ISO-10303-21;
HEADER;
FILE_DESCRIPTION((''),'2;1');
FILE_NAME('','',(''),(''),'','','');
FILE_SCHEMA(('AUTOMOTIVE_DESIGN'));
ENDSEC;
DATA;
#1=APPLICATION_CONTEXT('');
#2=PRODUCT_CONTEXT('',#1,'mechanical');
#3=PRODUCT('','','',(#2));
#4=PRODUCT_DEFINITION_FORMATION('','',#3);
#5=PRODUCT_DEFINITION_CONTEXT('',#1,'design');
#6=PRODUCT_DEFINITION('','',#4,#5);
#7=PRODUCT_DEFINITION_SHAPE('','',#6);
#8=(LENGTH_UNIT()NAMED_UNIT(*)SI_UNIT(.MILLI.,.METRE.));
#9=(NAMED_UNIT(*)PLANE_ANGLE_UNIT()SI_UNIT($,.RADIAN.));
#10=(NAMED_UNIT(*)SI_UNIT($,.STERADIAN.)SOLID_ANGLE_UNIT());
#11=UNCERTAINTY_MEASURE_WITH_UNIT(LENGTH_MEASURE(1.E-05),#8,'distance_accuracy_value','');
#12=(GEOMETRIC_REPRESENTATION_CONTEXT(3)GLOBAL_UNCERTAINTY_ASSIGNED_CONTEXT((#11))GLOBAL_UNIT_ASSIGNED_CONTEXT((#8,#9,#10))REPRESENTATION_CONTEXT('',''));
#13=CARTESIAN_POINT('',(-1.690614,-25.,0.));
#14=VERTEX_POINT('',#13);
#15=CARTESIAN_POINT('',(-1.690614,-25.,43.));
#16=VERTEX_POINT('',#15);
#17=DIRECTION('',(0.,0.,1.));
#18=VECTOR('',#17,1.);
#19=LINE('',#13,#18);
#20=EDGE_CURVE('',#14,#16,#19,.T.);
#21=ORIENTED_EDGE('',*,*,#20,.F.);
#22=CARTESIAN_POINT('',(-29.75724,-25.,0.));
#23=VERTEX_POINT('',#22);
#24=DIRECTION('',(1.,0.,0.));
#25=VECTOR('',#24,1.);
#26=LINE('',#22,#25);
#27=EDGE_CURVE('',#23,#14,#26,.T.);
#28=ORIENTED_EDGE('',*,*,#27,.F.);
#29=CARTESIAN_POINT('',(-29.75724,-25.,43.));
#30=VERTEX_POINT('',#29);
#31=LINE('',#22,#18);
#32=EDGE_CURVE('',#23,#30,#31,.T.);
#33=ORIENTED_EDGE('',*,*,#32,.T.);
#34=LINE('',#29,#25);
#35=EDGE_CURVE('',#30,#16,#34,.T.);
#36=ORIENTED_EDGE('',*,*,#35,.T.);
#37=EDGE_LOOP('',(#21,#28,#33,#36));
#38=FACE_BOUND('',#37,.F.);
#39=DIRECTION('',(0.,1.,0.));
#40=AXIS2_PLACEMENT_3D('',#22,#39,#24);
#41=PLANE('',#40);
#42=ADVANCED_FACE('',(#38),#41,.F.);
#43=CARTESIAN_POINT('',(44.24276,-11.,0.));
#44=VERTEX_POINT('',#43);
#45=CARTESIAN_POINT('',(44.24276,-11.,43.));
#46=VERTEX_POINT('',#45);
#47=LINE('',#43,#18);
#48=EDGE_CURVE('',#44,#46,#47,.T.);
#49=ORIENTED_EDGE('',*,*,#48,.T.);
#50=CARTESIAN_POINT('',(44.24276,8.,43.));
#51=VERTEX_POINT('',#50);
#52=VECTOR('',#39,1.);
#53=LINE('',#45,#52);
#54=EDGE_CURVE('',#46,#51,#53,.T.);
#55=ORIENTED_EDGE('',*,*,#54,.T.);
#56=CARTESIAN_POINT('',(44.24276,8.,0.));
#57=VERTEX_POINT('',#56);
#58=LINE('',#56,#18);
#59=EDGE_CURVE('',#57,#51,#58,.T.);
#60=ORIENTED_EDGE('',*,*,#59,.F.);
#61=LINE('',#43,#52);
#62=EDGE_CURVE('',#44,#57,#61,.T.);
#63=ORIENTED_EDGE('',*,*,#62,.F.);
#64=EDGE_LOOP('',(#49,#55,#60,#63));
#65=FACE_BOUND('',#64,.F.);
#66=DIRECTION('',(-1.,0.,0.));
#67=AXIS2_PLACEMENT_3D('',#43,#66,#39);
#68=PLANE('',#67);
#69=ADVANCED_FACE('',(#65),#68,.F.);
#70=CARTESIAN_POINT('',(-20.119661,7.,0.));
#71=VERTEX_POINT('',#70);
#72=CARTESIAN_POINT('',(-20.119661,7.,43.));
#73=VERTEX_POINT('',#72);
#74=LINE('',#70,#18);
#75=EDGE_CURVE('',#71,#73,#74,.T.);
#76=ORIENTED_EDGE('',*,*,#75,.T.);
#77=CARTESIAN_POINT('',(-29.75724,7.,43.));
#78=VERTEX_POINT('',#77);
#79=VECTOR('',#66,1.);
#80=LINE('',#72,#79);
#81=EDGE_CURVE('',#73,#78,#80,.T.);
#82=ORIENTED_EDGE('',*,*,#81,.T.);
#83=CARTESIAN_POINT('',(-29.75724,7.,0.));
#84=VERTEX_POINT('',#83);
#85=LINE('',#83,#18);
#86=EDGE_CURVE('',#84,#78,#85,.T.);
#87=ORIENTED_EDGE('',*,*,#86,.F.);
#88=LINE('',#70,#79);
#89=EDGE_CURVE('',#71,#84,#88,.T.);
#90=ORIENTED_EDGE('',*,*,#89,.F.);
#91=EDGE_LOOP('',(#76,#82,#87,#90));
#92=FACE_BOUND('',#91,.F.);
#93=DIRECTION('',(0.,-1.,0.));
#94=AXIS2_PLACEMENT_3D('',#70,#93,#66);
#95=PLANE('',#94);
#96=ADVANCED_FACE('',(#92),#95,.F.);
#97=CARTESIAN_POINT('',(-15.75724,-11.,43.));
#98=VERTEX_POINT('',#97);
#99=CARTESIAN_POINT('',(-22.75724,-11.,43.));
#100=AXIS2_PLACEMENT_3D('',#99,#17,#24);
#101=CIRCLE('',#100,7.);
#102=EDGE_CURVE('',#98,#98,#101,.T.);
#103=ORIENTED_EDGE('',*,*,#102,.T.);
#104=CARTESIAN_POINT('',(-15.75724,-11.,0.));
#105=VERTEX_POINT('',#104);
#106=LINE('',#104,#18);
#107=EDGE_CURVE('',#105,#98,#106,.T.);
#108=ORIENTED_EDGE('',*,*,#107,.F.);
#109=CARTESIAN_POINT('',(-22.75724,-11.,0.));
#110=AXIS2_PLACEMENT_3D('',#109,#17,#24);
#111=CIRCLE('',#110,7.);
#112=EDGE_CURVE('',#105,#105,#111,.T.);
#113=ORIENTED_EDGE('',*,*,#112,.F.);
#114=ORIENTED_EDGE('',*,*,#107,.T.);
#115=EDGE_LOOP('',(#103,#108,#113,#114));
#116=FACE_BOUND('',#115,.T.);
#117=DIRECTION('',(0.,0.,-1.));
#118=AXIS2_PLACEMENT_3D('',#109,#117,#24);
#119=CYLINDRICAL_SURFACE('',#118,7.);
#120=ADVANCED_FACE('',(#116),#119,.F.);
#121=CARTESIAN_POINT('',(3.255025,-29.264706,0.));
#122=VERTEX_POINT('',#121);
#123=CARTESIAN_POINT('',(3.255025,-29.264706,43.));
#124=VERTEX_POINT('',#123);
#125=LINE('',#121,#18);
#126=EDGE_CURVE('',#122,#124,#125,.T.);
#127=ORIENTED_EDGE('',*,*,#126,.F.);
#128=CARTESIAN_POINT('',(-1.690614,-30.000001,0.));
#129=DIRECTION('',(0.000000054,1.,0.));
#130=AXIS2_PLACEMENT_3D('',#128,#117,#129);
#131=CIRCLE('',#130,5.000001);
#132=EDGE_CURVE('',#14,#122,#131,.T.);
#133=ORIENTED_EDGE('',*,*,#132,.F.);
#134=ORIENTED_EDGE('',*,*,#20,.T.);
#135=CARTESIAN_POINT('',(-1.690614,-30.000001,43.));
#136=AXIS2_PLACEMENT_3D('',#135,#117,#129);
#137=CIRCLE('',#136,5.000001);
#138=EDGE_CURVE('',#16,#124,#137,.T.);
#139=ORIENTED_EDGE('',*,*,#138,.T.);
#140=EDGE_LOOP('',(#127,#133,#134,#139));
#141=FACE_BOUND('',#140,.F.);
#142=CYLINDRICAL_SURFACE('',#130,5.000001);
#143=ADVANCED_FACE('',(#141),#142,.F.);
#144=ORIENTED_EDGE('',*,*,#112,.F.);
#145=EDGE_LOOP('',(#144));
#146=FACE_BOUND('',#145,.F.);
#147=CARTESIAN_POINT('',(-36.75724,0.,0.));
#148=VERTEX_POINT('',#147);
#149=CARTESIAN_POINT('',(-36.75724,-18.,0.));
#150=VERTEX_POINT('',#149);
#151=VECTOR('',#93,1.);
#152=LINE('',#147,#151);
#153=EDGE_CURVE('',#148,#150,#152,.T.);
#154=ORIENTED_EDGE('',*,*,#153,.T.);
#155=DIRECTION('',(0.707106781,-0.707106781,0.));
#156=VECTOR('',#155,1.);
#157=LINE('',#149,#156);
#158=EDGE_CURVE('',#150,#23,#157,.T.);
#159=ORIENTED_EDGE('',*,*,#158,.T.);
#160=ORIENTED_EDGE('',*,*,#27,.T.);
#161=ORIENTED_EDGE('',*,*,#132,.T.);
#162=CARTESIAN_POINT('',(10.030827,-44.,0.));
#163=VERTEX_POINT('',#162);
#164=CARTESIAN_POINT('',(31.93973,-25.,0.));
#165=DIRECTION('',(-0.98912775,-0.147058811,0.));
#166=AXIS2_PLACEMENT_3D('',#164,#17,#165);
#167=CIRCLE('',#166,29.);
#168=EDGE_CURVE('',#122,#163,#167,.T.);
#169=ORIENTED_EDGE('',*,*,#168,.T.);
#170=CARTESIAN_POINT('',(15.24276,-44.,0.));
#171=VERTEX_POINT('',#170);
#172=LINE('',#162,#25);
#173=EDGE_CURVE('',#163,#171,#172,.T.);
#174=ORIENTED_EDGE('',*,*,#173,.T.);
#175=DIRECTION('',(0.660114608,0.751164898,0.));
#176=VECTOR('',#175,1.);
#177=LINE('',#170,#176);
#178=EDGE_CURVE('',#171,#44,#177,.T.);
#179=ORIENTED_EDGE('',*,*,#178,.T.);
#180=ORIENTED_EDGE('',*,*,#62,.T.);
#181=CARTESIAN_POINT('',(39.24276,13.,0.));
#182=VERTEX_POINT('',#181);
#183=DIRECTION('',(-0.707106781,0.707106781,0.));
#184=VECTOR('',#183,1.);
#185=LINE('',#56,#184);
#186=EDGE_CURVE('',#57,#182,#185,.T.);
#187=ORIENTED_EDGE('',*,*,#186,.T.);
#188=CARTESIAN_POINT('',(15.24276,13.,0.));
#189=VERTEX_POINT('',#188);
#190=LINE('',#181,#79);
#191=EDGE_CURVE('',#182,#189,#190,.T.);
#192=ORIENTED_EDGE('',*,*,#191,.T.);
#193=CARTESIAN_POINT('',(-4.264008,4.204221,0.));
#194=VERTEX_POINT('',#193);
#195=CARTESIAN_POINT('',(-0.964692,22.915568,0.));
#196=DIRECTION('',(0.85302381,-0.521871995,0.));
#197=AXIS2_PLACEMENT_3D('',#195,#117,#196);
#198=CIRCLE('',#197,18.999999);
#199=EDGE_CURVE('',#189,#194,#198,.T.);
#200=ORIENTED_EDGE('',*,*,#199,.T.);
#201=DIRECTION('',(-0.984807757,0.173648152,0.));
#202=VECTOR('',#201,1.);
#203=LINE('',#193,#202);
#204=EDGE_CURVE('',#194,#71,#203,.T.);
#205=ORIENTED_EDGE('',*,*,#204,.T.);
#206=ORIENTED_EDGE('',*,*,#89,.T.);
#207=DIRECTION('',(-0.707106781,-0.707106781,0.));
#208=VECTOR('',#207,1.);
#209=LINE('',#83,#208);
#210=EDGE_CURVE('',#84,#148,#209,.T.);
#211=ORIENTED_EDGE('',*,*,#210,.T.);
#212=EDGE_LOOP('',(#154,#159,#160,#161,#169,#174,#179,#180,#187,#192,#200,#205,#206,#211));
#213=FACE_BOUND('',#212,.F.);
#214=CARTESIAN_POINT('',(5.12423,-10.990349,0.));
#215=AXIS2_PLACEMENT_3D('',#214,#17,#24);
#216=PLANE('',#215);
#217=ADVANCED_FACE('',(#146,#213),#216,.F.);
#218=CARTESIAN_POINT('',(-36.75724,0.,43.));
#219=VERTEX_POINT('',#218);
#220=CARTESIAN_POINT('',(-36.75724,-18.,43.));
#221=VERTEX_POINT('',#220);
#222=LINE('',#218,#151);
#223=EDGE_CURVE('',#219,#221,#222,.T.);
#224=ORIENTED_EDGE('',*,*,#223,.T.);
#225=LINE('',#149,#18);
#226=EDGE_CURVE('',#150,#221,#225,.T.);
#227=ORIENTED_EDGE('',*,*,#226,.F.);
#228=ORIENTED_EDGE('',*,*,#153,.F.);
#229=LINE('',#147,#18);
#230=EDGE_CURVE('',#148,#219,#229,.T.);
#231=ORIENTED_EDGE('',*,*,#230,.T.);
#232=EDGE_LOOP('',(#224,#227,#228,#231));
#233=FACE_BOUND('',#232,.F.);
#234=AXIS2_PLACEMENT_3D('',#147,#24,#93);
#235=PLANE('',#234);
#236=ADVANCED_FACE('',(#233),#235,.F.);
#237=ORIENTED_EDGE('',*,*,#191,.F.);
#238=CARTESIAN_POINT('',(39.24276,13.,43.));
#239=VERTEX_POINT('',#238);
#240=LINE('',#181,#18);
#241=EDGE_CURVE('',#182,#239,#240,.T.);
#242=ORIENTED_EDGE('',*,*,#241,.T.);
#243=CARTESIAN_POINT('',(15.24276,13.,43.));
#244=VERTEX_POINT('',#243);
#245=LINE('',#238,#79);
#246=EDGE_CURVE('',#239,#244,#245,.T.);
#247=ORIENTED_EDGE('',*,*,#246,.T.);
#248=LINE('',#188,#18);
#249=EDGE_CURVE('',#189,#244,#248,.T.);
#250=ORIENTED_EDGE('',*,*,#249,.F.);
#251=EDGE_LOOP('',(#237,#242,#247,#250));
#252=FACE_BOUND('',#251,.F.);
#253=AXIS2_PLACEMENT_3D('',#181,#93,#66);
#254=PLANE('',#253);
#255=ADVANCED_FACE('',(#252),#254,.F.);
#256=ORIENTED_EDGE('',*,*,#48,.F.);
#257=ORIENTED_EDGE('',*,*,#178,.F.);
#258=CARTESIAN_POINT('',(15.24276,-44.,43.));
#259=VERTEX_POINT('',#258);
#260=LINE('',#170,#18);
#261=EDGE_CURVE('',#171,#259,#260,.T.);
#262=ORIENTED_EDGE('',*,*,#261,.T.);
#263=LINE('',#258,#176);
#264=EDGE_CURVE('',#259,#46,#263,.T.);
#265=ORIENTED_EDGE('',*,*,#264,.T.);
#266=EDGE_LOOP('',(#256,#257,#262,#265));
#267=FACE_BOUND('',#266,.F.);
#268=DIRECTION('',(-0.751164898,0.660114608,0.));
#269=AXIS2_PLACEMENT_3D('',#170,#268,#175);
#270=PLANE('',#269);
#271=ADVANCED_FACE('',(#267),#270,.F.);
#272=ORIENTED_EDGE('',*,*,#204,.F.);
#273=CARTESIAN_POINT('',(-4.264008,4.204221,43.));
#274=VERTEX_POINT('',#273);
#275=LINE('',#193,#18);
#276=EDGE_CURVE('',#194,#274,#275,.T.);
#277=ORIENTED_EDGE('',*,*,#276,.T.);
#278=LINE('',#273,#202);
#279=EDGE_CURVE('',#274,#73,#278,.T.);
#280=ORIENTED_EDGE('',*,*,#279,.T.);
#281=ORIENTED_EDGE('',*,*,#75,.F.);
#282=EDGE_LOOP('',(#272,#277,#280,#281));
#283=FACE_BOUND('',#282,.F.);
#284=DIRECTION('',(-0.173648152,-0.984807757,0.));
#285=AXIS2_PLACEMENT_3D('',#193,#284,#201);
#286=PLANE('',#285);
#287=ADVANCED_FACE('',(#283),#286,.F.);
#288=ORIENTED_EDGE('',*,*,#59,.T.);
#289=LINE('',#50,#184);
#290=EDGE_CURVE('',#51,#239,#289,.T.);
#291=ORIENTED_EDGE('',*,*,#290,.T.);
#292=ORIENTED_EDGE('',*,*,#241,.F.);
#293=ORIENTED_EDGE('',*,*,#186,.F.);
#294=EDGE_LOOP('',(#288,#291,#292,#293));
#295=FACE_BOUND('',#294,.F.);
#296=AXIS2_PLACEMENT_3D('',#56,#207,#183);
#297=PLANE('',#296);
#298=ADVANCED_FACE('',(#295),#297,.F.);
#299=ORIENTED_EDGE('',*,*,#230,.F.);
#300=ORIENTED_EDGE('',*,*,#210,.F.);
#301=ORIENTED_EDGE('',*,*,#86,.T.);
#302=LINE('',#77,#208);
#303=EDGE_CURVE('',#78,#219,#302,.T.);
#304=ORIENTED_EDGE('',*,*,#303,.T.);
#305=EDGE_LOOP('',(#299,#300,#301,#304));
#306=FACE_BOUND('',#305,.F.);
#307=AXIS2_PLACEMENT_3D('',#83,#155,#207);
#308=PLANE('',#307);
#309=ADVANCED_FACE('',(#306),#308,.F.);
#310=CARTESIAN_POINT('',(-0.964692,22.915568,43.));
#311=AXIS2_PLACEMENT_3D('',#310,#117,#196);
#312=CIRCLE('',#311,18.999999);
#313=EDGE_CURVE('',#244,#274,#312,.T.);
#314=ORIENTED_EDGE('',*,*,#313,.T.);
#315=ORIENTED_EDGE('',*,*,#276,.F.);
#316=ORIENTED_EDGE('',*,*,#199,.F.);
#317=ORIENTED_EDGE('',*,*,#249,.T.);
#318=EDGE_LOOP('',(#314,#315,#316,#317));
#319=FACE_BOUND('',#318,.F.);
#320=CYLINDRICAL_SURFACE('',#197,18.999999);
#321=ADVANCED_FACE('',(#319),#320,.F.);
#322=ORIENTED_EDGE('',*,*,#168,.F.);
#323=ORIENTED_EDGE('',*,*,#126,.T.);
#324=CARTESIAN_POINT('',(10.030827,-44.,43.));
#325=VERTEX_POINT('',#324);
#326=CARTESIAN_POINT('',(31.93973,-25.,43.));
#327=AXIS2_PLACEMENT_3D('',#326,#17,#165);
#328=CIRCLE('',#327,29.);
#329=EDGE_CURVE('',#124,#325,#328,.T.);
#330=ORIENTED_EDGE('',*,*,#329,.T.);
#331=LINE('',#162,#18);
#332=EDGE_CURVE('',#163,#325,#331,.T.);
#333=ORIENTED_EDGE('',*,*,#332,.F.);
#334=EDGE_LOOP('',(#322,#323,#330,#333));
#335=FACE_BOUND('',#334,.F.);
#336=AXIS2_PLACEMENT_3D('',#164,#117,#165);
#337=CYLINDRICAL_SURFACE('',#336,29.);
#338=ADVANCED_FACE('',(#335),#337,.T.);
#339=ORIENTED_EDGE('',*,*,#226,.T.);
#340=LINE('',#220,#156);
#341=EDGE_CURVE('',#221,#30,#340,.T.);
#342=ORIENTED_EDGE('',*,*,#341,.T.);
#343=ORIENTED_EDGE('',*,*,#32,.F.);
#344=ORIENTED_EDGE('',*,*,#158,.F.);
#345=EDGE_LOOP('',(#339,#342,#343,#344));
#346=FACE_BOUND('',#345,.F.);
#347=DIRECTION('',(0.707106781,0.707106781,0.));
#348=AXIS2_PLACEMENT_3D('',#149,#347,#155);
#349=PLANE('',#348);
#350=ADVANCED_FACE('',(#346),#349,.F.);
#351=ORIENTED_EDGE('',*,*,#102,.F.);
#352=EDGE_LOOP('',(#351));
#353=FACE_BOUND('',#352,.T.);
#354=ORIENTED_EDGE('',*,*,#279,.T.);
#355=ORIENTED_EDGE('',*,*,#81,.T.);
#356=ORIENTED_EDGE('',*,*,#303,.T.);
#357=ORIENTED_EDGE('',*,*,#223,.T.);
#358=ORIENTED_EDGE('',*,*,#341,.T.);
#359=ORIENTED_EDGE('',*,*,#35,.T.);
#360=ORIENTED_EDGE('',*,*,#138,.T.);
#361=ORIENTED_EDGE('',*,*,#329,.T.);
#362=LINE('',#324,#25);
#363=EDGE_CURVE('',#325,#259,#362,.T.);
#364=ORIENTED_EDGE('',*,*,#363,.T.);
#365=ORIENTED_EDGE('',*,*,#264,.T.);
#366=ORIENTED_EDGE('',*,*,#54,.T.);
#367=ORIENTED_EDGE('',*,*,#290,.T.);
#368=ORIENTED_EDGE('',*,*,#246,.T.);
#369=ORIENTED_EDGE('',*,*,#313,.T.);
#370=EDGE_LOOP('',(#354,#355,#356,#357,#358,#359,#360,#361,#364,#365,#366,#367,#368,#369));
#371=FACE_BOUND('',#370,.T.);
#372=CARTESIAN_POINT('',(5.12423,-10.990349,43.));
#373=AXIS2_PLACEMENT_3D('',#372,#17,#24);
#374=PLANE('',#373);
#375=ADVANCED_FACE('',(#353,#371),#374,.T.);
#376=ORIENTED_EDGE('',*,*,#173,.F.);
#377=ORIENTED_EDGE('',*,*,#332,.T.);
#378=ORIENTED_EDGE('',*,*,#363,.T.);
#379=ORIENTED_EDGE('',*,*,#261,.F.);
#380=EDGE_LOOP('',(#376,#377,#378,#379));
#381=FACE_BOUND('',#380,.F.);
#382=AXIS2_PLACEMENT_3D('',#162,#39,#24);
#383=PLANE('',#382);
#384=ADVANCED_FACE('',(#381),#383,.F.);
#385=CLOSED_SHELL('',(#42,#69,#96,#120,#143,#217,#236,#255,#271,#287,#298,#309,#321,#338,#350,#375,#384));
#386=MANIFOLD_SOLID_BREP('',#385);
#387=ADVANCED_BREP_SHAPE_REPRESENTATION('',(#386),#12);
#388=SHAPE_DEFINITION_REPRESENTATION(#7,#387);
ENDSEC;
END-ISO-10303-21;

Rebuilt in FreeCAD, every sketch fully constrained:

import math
import FreeCAD as App
import Part
import Sketcher
from FreeCAD import Vector
Q = App.Units.Quantity

doc = App.newDocument("Part")
body = doc.addObject("PartDesign::Body", "Body")

# Sketch on XY plane
sketch1 = body.newObject("Sketcher::SketchObject", "Sketch")
sketch1.AttachmentSupport = (doc.getObject("XY_Plane"), [""])
sketch1.MapMode = "FlatFace"
sketch1.addGeometry(Part.LineSegment(Vector(-20, 7, 0), Vector(-30, 7, 0)), False)
sketch1.addGeometry(Part.LineSegment(Vector(-30, 7, 0), Vector(-37, 0, 0)), False)
sketch1.addGeometry(Part.LineSegment(Vector(-37, 0, 0), Vector(-37, -18, 0)), False)
sketch1.addGeometry(Part.LineSegment(Vector(-37, -18, 0), Vector(-30, -25, 0)), False)
sketch1.addGeometry(Part.LineSegment(Vector(-30, -25, 0), Vector(-2, -25, 0)), False)
sketch1.addGeometry(Part.ArcOfCircle(Part.Circle(Vector(-2, -30, 0), Vector(0, 0, 1), 5), math.radians(8), math.radians(90)), False)
sketch1.addGeometry(Part.ArcOfCircle(Part.Circle(Vector(32, -25, 0), Vector(0, 0, 1), 29), math.radians(-172), math.radians(-139)), False)
sketch1.addGeometry(Part.LineSegment(Vector(10, -44, 0), Vector(15, -44, 0)), False)
sketch1.addGeometry(Part.LineSegment(Vector(15, -44, 0), Vector(44, -11, 0)), False)
sketch1.addGeometry(Part.LineSegment(Vector(44, -11, 0), Vector(44, 8, 0)), False)
sketch1.addGeometry(Part.LineSegment(Vector(44, 8, 0), Vector(39, 13, 0)), False)
sketch1.addGeometry(Part.LineSegment(Vector(39, 13, 0), Vector(15, 13, 0)), False)
sketch1.addGeometry(Part.ArcOfCircle(Part.Circle(Vector(-1, 23, 0), Vector(0, 0, 1), 19), math.radians(-100), math.radians(-31)), False)
sketch1.addGeometry(Part.LineSegment(Vector(-4, 4, 0), Vector(-20, 7, 0)), False)
sketch1.addGeometry(Part.Circle(Vector(-23, -11, 0), Vector(0, 0, 1), 7), False)
sketch1.addConstraint(Sketcher.Constraint("Coincident", 0, 2, 1, 1))
sketch1.addConstraint(Sketcher.Constraint("Coincident", 1, 2, 2, 1))
sketch1.addConstraint(Sketcher.Constraint("Coincident", 2, 2, 3, 1))
sketch1.addConstraint(Sketcher.Constraint("Coincident", 3, 2, 4, 1))
sketch1.addConstraint(Sketcher.Constraint("Tangent", 4, 2, 5, 2))
sketch1.addConstraint(Sketcher.Constraint("Tangent", 5, 1, 6, 1))
sketch1.addConstraint(Sketcher.Constraint("Coincident", 6, 2, 7, 1))
sketch1.addConstraint(Sketcher.Constraint("Coincident", 7, 2, 8, 1))
sketch1.addConstraint(Sketcher.Constraint("Coincident", 8, 2, 9, 1))
sketch1.addConstraint(Sketcher.Constraint("Coincident", 9, 2, 10, 1))
sketch1.addConstraint(Sketcher.Constraint("Coincident", 10, 2, 11, 1))
sketch1.addConstraint(Sketcher.Constraint("Coincident", 11, 2, 12, 2))
sketch1.addConstraint(Sketcher.Constraint("Tangent", 12, 1, 13, 1))
sketch1.addConstraint(Sketcher.Constraint("Coincident", 13, 2, 0, 1))
sketch1.addConstraint(Sketcher.Constraint("Horizontal", 0))
sketch1.addConstraint(Sketcher.Constraint("Vertical", 2))
sketch1.addConstraint(Sketcher.Constraint("Horizontal", 4))
sketch1.addConstraint(Sketcher.Constraint("Horizontal", 7))
sketch1.addConstraint(Sketcher.Constraint("Vertical", 9))
sketch1.addConstraint(Sketcher.Constraint("Horizontal", 11))
sketch1.addConstraint(Sketcher.Constraint("PointOnObject", 1, 2, -1))
sketch1.addConstraint(Sketcher.Constraint("Perpendicular", 1, 3))
sketch1.addConstraint(Sketcher.Constraint("Parallel", 3, 10))
sketch1.addConstraint(Sketcher.Constraint("Horizontal", 6, 3, 3, 2))
sketch1.addConstraint(Sketcher.Constraint("Horizontal", 14, 3, 8, 2))
sketch1.addConstraint(Sketcher.Constraint("Vertical", 0, 2, 3, 2))
sketch1.addConstraint(Sketcher.Constraint("Vertical", 7, 2, 11, 2))
sketch1.addConstraint(Sketcher.Constraint("Equal", 1, 3))
sketch1.addConstraint(Sketcher.Constraint("Diameter", 14, Q("14 mm")))
sketch1.addConstraint(Sketcher.Constraint("Radius", 5, Q("5.000001 mm")))
sketch1.addConstraint(Sketcher.Constraint("Radius", 6, Q("29 mm")))
sketch1.addConstraint(Sketcher.Constraint("Radius", 12, Q("18.999999 mm")))
sketch1.addConstraint(Sketcher.Constraint("DistanceX", 11, 2, 11, 1, Q("24 mm")))
sketch1.addConstraint(Sketcher.Constraint("DistanceY", 2, 2, 2, 1, Q("18 mm")))
sketch1.addConstraint(Sketcher.Constraint("DistanceY", 9, 1, 9, 2, Q("19 mm")))
sketch1.addConstraint(Sketcher.Constraint("Angle", 13, Q("170.000001 deg")))
sketch1.addConstraint(Sketcher.Constraint("DistanceY", 5, 3, -1, 1, Q("30.000001 mm")))
sketch1.addConstraint(Sketcher.Constraint("DistanceY", 14, 3, -1, 1, Q("11 mm")))
sketch1.addConstraint(Sketcher.Constraint("DistanceY", 6, 2, -1, 1, Q("44 mm")))
sketch1.addConstraint(Sketcher.Constraint("DistanceY", -1, 1, 10, 2, Q("13 mm")))
sketch1.addConstraint(Sketcher.Constraint("DistanceX", 0, 2, 14, 3, Q("7 mm")))
sketch1.addConstraint(Sketcher.Constraint("DistanceX", 0, 2, 0, 1, Q("9.637579 mm")))
sketch1.addConstraint(Sketcher.Constraint("Distance", 13, Q("16.100252 mm")))
sketch1.addConstraint(Sketcher.Constraint("DistanceX", 4, 1, 4, 2, Q("28.066626 mm")))
sketch1.addConstraint(Sketcher.Constraint("DistanceX", -1, 1, 6, 3, Q("31.93973 mm")))
pad1 = body.newObject("PartDesign::Pad", "Pad")
pad1.Profile = sketch1
pad1.Length = 43

doc.recompute()
